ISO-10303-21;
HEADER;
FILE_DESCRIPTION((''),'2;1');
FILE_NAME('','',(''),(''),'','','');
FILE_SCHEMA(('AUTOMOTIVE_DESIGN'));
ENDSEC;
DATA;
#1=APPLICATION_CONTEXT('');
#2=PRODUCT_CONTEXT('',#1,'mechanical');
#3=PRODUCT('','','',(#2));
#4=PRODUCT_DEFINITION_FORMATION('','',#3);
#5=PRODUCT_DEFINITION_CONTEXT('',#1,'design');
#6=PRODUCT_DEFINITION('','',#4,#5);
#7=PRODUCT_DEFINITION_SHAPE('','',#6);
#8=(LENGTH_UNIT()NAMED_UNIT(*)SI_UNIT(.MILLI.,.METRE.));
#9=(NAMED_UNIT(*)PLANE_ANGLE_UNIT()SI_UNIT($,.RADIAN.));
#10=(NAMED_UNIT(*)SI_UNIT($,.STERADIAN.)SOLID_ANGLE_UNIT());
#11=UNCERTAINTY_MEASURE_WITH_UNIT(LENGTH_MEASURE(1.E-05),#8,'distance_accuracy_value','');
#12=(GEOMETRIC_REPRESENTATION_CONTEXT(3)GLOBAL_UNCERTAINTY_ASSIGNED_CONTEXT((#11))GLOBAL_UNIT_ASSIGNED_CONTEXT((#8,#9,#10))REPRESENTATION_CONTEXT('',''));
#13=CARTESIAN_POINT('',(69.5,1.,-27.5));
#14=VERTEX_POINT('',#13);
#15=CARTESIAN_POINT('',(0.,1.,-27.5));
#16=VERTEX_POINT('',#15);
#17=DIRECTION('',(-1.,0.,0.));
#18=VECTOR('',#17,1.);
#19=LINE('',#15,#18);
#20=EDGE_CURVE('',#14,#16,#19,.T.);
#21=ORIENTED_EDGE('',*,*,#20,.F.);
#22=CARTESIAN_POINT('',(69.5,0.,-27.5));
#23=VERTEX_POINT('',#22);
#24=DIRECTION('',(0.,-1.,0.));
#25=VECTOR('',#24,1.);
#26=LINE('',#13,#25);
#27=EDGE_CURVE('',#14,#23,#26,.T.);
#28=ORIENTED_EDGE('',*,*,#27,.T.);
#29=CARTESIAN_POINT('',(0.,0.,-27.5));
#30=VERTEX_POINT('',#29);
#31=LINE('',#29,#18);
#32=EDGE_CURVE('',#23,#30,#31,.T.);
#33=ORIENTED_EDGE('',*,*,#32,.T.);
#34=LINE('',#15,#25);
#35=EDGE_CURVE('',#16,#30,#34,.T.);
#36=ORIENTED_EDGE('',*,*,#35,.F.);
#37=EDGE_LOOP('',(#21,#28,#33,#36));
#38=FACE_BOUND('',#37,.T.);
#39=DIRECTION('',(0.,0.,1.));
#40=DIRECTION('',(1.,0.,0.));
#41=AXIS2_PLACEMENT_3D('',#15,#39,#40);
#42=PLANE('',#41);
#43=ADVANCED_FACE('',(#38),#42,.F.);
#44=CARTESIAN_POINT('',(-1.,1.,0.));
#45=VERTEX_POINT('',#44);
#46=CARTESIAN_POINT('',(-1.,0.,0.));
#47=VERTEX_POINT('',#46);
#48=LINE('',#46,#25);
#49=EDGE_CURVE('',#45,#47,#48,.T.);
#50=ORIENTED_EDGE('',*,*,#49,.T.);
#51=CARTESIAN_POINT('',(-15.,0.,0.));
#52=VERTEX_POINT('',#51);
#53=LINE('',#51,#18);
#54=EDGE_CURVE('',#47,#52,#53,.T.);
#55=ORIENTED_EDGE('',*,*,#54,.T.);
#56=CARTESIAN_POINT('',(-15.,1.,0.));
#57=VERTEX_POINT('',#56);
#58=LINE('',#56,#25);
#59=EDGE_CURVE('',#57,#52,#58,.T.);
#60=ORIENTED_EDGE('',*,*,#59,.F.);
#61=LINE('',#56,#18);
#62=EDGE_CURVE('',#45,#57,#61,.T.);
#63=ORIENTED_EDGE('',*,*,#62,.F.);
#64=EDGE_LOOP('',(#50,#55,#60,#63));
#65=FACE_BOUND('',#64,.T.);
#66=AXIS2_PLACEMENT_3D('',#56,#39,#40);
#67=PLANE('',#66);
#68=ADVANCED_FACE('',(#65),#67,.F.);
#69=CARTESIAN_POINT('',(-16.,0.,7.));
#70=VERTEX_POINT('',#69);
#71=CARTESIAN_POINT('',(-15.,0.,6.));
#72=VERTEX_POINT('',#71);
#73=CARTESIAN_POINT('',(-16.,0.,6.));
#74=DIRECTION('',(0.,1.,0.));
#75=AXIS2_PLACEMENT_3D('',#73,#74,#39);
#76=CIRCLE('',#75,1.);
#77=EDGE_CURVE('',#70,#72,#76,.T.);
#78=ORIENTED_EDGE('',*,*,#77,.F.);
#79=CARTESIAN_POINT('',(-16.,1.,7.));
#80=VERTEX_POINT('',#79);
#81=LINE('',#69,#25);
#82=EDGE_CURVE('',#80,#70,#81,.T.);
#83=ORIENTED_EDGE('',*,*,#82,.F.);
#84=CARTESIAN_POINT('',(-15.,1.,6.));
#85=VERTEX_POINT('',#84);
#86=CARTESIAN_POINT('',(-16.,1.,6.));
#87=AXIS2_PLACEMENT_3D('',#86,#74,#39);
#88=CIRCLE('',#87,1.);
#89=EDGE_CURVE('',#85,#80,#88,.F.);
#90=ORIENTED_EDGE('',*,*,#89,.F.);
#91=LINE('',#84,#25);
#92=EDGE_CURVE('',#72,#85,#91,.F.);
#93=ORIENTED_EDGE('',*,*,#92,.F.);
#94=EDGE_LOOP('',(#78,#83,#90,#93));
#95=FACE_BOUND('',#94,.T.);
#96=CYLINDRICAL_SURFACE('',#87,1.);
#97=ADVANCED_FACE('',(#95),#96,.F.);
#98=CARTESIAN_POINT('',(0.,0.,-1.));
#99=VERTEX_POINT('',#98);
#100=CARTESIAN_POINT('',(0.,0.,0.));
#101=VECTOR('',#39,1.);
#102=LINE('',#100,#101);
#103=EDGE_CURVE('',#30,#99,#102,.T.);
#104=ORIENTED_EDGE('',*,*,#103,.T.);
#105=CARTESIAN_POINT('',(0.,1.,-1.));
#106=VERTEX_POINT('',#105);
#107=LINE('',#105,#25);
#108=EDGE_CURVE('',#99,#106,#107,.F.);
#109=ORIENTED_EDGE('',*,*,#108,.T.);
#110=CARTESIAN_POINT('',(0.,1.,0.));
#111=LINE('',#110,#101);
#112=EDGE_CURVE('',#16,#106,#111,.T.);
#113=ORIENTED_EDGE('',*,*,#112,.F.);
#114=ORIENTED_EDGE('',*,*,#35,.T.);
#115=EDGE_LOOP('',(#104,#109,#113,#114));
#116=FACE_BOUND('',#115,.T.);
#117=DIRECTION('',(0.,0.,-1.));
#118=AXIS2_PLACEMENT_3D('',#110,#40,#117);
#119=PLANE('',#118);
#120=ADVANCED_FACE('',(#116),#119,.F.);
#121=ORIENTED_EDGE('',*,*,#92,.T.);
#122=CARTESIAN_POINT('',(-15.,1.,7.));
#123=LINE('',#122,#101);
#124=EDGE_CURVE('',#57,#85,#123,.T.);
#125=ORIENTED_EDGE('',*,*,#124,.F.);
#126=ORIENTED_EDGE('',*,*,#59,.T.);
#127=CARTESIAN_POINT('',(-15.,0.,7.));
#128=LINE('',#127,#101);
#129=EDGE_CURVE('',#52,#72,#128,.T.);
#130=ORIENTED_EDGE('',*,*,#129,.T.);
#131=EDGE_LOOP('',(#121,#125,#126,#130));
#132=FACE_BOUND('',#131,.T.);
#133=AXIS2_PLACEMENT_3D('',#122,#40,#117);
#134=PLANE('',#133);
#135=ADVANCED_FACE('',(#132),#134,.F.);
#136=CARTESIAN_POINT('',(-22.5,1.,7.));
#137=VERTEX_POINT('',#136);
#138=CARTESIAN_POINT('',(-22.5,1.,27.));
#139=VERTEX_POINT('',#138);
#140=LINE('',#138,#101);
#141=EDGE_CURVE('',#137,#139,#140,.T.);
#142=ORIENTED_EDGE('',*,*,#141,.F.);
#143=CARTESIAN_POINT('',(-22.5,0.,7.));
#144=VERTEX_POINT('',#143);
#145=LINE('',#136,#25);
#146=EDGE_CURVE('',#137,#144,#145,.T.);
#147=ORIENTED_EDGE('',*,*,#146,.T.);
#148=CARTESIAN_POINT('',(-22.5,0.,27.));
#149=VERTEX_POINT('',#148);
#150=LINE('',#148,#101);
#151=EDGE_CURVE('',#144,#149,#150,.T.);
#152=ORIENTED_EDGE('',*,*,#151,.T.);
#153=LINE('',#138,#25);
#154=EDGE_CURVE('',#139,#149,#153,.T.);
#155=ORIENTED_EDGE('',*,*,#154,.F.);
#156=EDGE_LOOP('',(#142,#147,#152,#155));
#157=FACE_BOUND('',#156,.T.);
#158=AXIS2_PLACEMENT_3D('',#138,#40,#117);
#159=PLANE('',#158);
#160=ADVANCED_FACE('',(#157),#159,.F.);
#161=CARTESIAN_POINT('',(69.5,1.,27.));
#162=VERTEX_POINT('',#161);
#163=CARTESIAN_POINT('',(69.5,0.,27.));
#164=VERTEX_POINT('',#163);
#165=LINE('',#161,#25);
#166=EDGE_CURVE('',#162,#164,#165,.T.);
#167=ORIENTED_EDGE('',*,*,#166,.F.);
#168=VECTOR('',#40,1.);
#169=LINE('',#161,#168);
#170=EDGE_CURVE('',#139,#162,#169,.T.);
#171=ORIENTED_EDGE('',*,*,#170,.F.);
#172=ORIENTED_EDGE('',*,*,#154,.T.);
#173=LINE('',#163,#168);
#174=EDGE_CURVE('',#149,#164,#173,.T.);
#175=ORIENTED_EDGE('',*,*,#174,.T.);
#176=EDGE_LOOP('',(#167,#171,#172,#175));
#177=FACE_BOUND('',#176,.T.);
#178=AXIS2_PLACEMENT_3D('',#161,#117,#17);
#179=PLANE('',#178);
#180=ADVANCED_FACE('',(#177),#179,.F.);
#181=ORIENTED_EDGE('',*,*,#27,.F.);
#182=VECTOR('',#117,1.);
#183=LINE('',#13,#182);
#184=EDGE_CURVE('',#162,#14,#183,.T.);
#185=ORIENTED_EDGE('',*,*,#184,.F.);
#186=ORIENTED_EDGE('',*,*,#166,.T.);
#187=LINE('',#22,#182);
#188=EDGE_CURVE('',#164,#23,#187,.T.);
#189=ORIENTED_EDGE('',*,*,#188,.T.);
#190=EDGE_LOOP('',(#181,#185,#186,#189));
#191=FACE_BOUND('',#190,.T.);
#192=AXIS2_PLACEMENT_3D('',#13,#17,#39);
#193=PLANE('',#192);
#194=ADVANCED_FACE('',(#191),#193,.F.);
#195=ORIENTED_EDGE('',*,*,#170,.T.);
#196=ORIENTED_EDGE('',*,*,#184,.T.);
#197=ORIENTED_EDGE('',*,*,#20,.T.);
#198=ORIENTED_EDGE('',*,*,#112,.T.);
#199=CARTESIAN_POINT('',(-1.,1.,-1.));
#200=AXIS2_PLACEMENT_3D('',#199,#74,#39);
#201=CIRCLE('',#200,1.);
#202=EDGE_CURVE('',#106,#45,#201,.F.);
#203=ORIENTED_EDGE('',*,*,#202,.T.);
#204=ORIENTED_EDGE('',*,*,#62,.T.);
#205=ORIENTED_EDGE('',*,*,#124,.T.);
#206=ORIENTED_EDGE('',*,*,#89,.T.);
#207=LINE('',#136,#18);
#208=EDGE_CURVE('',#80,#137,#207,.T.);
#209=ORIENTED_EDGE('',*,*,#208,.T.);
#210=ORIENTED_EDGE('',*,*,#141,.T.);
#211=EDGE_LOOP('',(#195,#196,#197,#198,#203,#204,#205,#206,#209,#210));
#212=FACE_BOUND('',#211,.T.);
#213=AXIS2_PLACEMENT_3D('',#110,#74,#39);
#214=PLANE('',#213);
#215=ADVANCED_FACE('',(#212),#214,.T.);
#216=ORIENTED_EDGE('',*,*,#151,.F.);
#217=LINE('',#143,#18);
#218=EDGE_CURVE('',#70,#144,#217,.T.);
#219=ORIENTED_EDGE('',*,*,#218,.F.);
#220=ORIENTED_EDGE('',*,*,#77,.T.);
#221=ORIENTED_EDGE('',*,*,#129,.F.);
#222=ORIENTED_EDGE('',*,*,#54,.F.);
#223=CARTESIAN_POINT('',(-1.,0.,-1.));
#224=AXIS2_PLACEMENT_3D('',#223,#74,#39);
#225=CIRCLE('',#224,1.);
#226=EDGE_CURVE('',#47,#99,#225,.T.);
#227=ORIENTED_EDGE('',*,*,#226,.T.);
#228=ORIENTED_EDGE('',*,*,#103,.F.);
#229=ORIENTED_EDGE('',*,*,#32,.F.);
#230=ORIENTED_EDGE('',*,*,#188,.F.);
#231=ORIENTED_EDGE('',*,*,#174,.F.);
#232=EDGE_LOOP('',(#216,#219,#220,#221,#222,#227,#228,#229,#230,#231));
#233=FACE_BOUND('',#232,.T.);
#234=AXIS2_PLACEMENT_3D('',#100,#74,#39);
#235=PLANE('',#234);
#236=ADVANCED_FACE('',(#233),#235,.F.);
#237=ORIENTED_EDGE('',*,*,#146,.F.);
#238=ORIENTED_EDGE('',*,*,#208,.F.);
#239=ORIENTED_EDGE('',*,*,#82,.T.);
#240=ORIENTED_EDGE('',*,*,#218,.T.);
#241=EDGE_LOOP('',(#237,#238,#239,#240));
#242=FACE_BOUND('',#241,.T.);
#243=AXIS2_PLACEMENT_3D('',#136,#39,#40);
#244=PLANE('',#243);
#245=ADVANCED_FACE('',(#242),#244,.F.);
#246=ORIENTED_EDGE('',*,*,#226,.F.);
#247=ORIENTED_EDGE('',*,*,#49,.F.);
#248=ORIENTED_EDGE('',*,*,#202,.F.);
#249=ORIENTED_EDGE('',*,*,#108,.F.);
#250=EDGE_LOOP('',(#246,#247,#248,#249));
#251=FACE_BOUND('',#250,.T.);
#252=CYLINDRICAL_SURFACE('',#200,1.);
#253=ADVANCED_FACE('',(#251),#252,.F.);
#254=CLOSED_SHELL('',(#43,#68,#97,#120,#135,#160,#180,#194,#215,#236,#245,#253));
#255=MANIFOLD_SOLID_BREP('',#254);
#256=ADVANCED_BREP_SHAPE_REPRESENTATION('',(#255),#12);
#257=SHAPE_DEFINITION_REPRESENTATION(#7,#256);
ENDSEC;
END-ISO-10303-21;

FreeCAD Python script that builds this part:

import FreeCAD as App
import Part
import Sketcher

V = App.Vector
Q = App.Units.Quantity


def edges_at(feature, points):
    """Names of the edges that pass closest to the given points."""
    edges = feature.Shape.Edges
    near = lambda p: min(range(len(edges)), key=lambda i: edges[i].distToShape(Part.Vertex(*p))[0])
    return sorted({f"Edge{near(p) + 1}" for p in points})

doc = App.newDocument("Part")
params = doc.addObject("Spreadsheet::Sheet", "Params")
for row, (alias, value) in enumerate([
    ("sketch1_width", "15 mm"),
    ("sketch1_width2", "92 mm"),
    ("sketch1_height", "7 mm"),
    ("sketch1_height2", "20 mm"),
    ("sketch1_width3", "7.5 mm"),
    ("pad1_length", "1 mm"),
    ("fillet_radius", "1 mm"),
], start=1):
    params.set(f"A{row}", alias)
    params.set(f"B{row}", "=" + value)
    params.setAlias(f"B{row}", alias)

body = doc.addObject("PartDesign::Body", "Body")

# Sketch on XZ plane
sketch1 = body.newObject("Sketcher::SketchObject", "Sketch")
sketch1.AttachmentSupport = (doc.getObject("XZ_Plane"), [""])
sketch1.MapMode = "FlatFace"
sketch1.addGeometry(Part.LineSegment(V(0, -28, 0), V(0, 0, 0)), False)
sketch1.addGeometry(Part.LineSegment(V(0, 0, 0), V(-15, 0, 0)), False)
sketch1.addGeometry(Part.LineSegment(V(-15, 0, 0), V(-15, 7, 0)), False)
sketch1.addGeometry(Part.LineSegment(V(-15, 7, 0), V(-22, 7, 0)), False)
sketch1.addGeometry(Part.LineSegment(V(-22, 7, 0), V(-22, 27, 0)), False)
sketch1.addGeometry(Part.LineSegment(V(-22, 27, 0), V(70, 27, 0)), False)
sketch1.addGeometry(Part.LineSegment(V(70, 27, 0), V(70, -28, 0)), False)
sketch1.addGeometry(Part.LineSegment(V(70, -28, 0), V(0, -28, 0)), False)
sketch1.addConstraint(Sketcher.Constraint("Coincident", 0, 2, 1, 1))
sketch1.addConstraint(Sketcher.Constraint("Coincident", 1, 2, 2, 1))
sketch1.addConstraint(Sketcher.Constraint("Coincident", 2, 2, 3, 1))
sketch1.addConstraint(Sketcher.Constraint("Coincident", 3, 2, 4, 1))
sketch1.addConstraint(Sketcher.Constraint("Coincident", 4, 2, 5, 1))
sketch1.addConstraint(Sketcher.Constraint("Coincident", 5, 2, 6, 1))
sketch1.addConstraint(Sketcher.Constraint("Coincident", 6, 2, 7, 1))
sketch1.addConstraint(Sketcher.Constraint("Coincident", 7, 2, 0, 1))
sketch1.addConstraint(Sketcher.Constraint("Vertical", 0))
sketch1.addConstraint(Sketcher.Constraint("Horizontal", 1))
sketch1.addConstraint(Sketcher.Constraint("Vertical", 2))
sketch1.addConstraint(Sketcher.Constraint("Horizontal", 3))
sketch1.addConstraint(Sketcher.Constraint("Vertical", 4))
sketch1.addConstraint(Sketcher.Constraint("Horizontal", 5))
sketch1.addConstraint(Sketcher.Constraint("Vertical", 6))
sketch1.addConstraint(Sketcher.Constraint("Horizontal", 7))
sketch1.addConstraint(Sketcher.Constraint("Coincident", 0, 2, -1, 1))
sketch1.addConstraint(Sketcher.Constraint("DistanceX", 1, 2, 1, 1, Q("15 mm")))
sketch1.addConstraint(Sketcher.Constraint("DistanceX", 5, 1, 5, 2, Q("92 mm")))
sketch1.addConstraint(Sketcher.Constraint("DistanceY", 2, 1, 2, 2, Q("7 mm")))
sketch1.addConstraint(Sketcher.Constraint("DistanceY", 4, 1, 4, 2, Q("20 mm")))
sketch1.addConstraint(Sketcher.Constraint("DistanceX", 3, 2, 3, 1, Q("7.5 mm")))
sketch1.addConstraint(Sketcher.Constraint("DistanceY", 0, 1, 0, 2, Q("27.5 mm")))
sketch1.setExpression("Constraints[17]", "Params.sketch1_width")
sketch1.setExpression("Constraints[18]", "Params.sketch1_width2")
sketch1.setExpression("Constraints[19]", "Params.sketch1_height")
sketch1.setExpression("Constraints[20]", "Params.sketch1_height2")
sketch1.setExpression("Constraints[21]", "Params.sketch1_width3")
pad1 = body.newObject("PartDesign::Pad", "Pad")
pad1.Profile = sketch1
pad1.setExpression("Length", "Params.pad1_length")
pad1.Reversed = True
doc.recompute()

fillet = body.newObject("PartDesign::Fillet", "Fillet")
fillet.Base = (pad1, edges_at(pad1, [(0, 0.5, 0), (-15, 0.5, 7)]))
fillet.setExpression("Radius", "Params.fillet_radius")

doc.recompute()
